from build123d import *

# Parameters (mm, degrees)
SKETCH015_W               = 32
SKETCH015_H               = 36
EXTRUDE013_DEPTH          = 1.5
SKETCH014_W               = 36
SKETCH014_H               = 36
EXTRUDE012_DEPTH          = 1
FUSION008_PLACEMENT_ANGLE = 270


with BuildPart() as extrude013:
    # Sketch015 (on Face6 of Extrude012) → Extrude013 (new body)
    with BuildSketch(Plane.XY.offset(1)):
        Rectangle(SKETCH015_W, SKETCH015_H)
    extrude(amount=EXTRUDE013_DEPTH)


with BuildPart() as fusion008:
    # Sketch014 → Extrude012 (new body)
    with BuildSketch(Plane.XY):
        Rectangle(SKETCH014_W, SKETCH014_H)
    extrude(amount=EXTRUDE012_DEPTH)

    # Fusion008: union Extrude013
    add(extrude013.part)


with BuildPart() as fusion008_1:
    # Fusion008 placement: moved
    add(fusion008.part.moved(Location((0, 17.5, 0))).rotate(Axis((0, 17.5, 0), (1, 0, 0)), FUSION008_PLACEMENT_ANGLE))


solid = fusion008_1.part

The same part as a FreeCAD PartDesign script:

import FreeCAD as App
import Part
import Sketcher
from FreeCAD import Vector
Q = App.Units.Quantity


def add_polygon(sketch, points):
    """Adds a closed chain of lines whose ends are joined by coincident constraints."""
    first, n = sketch.GeometryCount, len(points)
    for a, b in zip(points, points[1:] + points[:1]):
        sketch.addGeometry(Part.LineSegment(App.Vector(*a, 0), App.Vector(*b, 0)), False)
    for i in range(n):
        sketch.addConstraint(Sketcher.Constraint("Coincident", first + i, 2, first + (i + 1) % n, 1))

doc = App.newDocument("Part")
body = doc.addObject("PartDesign::Body", "Body")

sketch1 = body.newObject("Sketcher::SketchObject", "Sketch")
sketch1.AttachmentSupport = (doc.getObject("XY_Plane"), [""])
sketch1.MapMode = "FlatFace"
sketch1.AttachmentOffset = App.Placement(Vector(0, 0, 1), App.Rotation())
add_polygon(sketch1, [(-16, 18), (-16, -18), (16, -18), (16, 18)])
sketch1.addConstraint([
    Sketcher.Constraint("Vertical", 0),
    Sketcher.Constraint("Horizontal", 1),
    Sketcher.Constraint("Vertical", 2),
    Sketcher.Constraint("Horizontal", 3),
    Sketcher.Constraint("Symmetric", 0, 2, 2, 2, -1, 1),
    Sketcher.Constraint("DistanceX", 1, 1, 1, 2, Q("32 mm")),
    Sketcher.Constraint("DistanceY", 0, 2, 0, 1, Q("36 mm")),
])
pad1 = body.newObject("PartDesign::Pad", "Pad")
pad1.Profile = sketch1
pad1.Length = 1.5
body2 = doc.addObject("PartDesign::Body", "Body001")

sketch2 = body2.newObject("Sketcher::SketchObject", "Sketch001")
sketch2.AttachmentSupport = (doc.getObject("XY_Plane001"), [""])
sketch2.MapMode = "FlatFace"
add_polygon(sketch2, [(-18, 18), (-18, -18), (18, -18), (18, 18)])
sketch2.addConstraint([
    Sketcher.Constraint("Vertical", 0),
    Sketcher.Constraint("Horizontal", 1),
    Sketcher.Constraint("Vertical", 2),
    Sketcher.Constraint("Horizontal", 3),
    Sketcher.Constraint("Symmetric", 0, 2, 2, 2, -1, 1),
    Sketcher.Constraint("Equal", 3, 0),
    Sketcher.Constraint("DistanceX", 1, 1, 1, 2, Q("36 mm")),
])
pad2 = body2.newObject("PartDesign::Pad", "Pad001")
pad2.Profile = sketch2
pad2.Length = 1
doc.recompute()

boolean = body2.newObject("PartDesign::Boolean", "Boolean")
boolean.Type = "Fuse"
boolean.addObjects([body])
body3 = doc.addObject("PartDesign::Body", "Body002")
doc.recompute()

body2.Placement = App.Placement(Vector(0, 17.5, 0), App.Rotation(Vector(1, 0, 0), 270))
boolean2 = body3.newObject("PartDesign::Boolean", "Boolean001")
boolean2.Type = "Fuse"
boolean2.addObjects([body2])

doc.recompute()
